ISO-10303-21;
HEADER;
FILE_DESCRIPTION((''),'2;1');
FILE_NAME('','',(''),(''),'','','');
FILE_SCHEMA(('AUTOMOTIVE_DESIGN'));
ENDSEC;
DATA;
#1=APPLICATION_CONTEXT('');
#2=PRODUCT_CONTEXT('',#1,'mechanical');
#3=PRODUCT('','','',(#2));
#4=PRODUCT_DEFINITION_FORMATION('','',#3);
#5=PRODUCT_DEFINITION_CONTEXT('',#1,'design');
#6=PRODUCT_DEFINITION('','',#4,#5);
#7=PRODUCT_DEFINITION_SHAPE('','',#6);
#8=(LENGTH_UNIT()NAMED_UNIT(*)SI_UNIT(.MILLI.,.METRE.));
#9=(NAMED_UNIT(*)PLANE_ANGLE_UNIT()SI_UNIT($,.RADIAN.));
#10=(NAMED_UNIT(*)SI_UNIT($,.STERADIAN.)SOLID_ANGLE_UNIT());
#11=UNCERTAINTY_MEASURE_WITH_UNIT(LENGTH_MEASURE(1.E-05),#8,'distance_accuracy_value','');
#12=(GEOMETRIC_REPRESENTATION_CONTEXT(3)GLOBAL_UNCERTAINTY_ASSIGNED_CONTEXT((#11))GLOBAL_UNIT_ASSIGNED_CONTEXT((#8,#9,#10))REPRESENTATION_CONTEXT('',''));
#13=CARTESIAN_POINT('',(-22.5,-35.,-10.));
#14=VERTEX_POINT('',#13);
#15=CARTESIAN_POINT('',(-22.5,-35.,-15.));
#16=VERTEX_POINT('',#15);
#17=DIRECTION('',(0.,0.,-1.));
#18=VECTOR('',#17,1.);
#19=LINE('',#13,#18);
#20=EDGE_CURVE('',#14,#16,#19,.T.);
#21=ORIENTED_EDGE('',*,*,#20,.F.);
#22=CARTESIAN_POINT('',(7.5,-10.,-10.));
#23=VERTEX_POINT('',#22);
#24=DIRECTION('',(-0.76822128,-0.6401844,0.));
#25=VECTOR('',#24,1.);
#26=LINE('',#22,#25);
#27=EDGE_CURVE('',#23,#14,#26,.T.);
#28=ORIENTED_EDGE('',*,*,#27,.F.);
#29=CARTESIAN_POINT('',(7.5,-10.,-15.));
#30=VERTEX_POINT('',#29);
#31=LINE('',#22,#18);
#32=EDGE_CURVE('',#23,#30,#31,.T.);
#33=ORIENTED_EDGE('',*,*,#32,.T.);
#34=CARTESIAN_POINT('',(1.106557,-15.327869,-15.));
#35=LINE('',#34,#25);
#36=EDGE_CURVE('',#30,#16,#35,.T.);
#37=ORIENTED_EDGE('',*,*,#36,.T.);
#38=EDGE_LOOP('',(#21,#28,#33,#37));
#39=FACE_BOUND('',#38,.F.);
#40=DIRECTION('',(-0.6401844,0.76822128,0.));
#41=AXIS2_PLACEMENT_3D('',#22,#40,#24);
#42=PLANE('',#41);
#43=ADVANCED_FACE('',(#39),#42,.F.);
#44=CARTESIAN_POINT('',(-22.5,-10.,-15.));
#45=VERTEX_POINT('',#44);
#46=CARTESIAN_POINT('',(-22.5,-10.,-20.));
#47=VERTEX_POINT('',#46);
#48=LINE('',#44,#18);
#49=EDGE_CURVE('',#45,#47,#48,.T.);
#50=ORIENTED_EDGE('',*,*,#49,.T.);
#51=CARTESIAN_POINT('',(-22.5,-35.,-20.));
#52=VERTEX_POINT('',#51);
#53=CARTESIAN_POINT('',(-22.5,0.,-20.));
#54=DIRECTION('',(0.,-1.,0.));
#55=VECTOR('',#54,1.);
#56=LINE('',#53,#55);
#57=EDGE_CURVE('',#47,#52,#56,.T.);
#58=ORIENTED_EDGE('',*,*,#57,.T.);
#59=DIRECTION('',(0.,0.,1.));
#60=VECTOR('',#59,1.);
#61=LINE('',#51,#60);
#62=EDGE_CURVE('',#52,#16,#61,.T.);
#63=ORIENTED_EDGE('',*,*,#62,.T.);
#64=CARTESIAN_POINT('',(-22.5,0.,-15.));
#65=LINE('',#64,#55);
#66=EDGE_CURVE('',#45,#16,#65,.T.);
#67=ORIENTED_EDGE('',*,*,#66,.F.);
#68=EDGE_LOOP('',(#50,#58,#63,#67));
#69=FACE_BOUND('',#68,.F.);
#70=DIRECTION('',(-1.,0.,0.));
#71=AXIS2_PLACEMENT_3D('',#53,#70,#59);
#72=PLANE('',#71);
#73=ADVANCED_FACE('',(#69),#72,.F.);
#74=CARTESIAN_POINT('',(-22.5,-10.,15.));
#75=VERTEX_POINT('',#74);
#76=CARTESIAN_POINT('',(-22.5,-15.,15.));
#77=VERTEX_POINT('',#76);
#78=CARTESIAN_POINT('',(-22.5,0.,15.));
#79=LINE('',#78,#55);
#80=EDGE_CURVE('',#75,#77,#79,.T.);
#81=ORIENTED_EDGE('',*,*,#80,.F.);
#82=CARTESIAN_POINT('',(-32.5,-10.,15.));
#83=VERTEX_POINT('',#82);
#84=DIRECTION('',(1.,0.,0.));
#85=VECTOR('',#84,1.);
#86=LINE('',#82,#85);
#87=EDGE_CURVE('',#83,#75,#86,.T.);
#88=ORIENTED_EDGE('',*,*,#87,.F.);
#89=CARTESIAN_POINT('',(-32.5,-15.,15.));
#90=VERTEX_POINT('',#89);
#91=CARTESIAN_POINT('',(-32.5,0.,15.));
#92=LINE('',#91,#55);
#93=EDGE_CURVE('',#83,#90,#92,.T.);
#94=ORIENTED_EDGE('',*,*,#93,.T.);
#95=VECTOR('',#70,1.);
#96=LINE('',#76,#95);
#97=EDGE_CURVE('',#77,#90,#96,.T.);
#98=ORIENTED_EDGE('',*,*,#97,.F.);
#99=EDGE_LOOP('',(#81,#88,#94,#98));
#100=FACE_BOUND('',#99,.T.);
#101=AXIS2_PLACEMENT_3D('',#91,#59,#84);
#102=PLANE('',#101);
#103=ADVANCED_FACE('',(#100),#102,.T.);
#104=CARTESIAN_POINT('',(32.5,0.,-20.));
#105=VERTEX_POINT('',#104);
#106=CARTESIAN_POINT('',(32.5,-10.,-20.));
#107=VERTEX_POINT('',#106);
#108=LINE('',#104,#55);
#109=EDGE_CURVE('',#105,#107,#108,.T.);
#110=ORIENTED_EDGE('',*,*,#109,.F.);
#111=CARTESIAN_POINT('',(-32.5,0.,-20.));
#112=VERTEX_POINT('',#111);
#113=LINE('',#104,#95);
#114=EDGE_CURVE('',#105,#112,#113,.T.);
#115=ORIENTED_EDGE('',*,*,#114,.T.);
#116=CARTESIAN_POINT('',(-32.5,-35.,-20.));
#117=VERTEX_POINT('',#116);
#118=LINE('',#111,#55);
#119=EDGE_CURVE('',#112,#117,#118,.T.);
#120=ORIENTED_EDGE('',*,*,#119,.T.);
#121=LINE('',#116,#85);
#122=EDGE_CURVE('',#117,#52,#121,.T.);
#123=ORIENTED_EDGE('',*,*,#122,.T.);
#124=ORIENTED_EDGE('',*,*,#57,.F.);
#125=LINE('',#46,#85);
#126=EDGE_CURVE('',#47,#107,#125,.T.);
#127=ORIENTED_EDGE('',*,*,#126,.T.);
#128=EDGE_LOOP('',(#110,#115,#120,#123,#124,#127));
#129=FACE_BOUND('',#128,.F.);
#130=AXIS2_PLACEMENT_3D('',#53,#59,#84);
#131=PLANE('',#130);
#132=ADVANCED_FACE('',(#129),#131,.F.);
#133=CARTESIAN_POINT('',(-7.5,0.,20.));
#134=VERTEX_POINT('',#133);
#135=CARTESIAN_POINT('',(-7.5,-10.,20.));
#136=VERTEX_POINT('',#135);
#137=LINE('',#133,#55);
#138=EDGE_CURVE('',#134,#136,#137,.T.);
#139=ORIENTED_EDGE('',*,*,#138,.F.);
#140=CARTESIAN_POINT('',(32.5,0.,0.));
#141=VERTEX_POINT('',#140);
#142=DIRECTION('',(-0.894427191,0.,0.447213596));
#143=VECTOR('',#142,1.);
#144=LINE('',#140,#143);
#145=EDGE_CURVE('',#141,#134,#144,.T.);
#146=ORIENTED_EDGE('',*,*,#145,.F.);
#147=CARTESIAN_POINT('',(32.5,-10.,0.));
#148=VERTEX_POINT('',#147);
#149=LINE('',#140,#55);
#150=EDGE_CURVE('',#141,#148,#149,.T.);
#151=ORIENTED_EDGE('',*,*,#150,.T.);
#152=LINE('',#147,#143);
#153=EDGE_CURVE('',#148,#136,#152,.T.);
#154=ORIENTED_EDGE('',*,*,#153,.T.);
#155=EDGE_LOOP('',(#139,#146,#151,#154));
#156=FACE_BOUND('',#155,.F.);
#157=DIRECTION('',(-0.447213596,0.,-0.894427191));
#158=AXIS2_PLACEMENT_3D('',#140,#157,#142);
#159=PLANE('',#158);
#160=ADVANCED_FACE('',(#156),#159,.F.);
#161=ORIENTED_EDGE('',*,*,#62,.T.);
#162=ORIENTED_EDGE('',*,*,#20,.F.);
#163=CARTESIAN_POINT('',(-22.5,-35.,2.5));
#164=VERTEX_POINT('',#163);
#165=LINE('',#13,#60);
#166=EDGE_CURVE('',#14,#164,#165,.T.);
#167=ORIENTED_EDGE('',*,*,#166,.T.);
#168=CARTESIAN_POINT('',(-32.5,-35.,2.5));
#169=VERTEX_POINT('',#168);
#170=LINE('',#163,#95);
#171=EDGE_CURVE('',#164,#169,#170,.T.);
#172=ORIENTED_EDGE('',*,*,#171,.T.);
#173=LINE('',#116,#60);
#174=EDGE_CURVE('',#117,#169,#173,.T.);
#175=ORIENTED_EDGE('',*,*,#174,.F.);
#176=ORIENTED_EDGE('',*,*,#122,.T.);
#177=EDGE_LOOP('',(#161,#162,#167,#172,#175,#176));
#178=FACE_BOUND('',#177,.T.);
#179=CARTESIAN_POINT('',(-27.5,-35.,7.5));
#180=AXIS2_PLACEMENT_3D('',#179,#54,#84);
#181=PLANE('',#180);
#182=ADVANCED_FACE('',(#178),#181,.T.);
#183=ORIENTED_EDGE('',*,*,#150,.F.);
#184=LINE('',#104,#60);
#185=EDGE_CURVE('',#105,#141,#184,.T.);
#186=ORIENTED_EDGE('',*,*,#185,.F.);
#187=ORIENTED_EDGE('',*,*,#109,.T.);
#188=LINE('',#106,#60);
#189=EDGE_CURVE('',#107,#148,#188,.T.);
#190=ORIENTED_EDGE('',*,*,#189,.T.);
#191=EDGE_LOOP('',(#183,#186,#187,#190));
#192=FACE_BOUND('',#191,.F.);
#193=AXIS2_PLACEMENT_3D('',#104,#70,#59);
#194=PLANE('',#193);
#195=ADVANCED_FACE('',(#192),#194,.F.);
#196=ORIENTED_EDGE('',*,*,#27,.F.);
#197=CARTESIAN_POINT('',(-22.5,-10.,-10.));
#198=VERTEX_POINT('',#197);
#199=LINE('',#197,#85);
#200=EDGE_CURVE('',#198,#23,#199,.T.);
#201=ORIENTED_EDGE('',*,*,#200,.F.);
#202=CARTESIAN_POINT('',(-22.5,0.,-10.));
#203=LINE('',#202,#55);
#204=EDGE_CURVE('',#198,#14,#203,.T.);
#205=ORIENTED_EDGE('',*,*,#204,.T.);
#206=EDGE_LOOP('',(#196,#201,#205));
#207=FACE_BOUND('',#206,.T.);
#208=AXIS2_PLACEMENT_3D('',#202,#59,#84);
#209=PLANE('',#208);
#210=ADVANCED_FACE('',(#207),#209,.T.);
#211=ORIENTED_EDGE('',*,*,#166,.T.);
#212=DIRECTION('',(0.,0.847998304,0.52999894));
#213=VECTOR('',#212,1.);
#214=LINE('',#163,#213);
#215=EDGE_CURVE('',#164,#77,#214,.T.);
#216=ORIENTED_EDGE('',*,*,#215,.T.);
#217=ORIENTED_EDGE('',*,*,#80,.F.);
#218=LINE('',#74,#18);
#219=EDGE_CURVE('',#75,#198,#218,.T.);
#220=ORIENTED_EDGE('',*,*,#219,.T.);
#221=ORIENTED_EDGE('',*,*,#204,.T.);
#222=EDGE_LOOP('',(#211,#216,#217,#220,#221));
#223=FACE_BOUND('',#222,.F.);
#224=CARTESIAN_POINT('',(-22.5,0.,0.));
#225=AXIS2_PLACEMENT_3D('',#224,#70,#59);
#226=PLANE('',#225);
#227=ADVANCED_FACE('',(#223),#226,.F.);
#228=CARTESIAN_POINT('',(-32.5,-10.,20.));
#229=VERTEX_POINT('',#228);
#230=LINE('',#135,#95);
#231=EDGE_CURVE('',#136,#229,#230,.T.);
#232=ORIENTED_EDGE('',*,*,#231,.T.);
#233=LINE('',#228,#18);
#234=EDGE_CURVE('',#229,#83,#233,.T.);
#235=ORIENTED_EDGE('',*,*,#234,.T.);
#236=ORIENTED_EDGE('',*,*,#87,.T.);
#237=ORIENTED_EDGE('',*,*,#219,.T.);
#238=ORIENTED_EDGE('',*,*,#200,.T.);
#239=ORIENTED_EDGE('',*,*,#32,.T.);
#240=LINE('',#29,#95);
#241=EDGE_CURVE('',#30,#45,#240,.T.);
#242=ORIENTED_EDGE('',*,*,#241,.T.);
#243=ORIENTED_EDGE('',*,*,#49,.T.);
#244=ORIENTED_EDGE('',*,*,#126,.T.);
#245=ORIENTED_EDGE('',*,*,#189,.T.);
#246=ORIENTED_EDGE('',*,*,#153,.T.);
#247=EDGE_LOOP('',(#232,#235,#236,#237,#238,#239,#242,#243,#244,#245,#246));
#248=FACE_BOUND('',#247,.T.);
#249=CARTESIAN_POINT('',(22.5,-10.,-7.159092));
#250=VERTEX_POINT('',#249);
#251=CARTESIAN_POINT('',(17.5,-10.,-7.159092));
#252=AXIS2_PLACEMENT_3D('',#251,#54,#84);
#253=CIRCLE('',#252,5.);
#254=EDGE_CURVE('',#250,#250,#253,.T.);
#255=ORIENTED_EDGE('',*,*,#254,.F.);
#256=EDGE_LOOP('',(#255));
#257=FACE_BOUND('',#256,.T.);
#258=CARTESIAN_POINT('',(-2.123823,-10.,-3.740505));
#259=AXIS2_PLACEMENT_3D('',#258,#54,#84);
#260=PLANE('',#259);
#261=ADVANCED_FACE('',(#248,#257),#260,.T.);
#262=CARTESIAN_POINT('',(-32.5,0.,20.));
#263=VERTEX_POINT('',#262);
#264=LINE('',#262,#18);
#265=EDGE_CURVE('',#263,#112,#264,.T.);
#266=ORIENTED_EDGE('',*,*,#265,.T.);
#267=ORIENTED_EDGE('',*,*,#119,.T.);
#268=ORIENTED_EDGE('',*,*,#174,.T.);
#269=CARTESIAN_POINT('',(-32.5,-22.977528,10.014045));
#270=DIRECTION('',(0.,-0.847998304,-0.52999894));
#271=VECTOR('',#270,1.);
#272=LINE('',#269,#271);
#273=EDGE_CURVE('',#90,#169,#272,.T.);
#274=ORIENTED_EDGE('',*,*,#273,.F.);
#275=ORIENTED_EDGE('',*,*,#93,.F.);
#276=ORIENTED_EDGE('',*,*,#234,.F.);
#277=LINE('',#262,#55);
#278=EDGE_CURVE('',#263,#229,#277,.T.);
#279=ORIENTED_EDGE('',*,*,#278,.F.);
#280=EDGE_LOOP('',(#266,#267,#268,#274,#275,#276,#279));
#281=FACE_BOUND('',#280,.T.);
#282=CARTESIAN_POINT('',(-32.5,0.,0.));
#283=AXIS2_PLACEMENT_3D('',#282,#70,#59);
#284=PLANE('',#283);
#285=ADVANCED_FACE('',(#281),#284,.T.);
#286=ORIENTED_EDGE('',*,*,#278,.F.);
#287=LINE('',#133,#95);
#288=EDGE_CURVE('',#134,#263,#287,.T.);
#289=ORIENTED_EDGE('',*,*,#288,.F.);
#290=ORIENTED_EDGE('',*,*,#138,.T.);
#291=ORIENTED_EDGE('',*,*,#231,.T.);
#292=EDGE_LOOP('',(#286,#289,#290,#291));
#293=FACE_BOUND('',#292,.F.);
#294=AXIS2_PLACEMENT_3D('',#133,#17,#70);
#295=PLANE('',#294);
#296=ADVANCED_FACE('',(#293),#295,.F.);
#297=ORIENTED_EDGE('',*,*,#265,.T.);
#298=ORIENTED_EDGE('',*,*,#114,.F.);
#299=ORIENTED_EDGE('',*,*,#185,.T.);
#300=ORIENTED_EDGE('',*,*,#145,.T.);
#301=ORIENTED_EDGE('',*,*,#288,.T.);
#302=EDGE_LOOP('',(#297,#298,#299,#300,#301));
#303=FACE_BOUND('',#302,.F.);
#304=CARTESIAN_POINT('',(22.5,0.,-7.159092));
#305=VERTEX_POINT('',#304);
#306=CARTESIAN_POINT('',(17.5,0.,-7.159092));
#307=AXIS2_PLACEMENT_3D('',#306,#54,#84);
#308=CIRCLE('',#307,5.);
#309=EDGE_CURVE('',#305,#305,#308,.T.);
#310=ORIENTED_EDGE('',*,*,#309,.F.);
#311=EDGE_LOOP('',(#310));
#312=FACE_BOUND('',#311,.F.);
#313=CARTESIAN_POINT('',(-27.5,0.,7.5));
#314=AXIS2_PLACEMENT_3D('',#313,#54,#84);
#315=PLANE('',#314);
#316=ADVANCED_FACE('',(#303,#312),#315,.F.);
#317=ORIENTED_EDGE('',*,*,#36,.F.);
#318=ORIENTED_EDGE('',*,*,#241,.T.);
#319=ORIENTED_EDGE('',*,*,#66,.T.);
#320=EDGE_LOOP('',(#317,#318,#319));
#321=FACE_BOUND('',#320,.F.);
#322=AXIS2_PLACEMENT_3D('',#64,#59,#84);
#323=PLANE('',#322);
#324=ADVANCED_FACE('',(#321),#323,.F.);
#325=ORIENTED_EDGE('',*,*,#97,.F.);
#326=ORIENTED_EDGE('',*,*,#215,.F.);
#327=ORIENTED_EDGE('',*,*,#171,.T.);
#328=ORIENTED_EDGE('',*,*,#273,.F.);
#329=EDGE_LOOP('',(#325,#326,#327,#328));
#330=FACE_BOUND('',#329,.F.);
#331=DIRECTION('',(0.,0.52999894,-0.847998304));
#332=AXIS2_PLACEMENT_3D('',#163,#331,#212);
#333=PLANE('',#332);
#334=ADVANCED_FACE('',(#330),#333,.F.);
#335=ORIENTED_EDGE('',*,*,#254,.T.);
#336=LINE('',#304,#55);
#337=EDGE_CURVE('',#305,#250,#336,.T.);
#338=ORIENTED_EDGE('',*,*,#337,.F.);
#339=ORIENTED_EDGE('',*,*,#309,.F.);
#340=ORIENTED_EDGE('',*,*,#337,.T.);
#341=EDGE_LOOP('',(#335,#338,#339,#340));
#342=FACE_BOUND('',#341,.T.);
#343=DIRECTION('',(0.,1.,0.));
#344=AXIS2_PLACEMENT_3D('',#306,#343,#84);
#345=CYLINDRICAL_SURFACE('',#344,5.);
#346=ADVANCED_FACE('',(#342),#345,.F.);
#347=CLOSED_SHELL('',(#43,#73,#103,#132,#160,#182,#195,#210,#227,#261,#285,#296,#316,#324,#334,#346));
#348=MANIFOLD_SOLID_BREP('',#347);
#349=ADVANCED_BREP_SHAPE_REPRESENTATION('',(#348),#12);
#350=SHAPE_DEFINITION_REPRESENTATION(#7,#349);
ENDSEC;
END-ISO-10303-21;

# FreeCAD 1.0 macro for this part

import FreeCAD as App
import Part
import Sketcher

V = App.Vector
Q = App.Units.Quantity


def add_polygon(sketch, points):
    """Adds a closed chain of lines whose ends are joined by coincident constraints."""
    first, n = sketch.GeometryCount, len(points)
    for a, b in zip(points, points[1:] + points[:1]):
        sketch.addGeometry(Part.LineSegment(App.Vector(*a, 0), App.Vector(*b, 0)), False)
    for i in range(n):
        sketch.addConstraint(Sketcher.Constraint("Coincident", first + i, 2, first + (i + 1) % n, 1))

doc = App.newDocument("Part")
body = doc.addObject("PartDesign::Body", "Body")

# Sketch on XZ plane
sketch1 = body.newObject("Sketcher::SketchObject", "Sketch")
sketch1.AttachmentSupport = (doc.getObject("XZ_Plane"), [""])
sketch1.MapMode = "FlatFace"
add_polygon(sketch1, [(-32.5, -20), (-22.5, -20), (-22.5, -15), (7.5, -15), (7.5, -10), (-22.5, -10), (-22.5, 0), (-32.5, 0)])  # lines 0-7
sketch1.addConstraint([
    Sketcher.Constraint("Horizontal", 0),
    Sketcher.Constraint("Vertical", 1),
    Sketcher.Constraint("Horizontal", 2),
    Sketcher.Constraint("Vertical", 3),
    Sketcher.Constraint("Horizontal", 4),
    Sketcher.Constraint("Vertical", 5),
    Sketcher.Constraint("Horizontal", 6),
    Sketcher.Constraint("Vertical", 7),
    Sketcher.Constraint("PointOnObject", 5, 2, -1),
    Sketcher.Constraint("Vertical", 1, 2, 4, 2),
    Sketcher.Constraint("Equal", 1, 3),
    Sketcher.Constraint("Equal", 6, 5),
    Sketcher.Constraint("DistanceX", 0, 1, 0, 2, Q("10 mm")),
    Sketcher.Constraint("DistanceX", 2, 1, 2, 2, Q("30 mm")),
    Sketcher.Constraint("DistanceY", 1, 1, 1, 2, Q("5 mm")),
    Sketcher.Constraint("DistanceX", 0, 2, -1, 1, Q("22.5 mm")),
])
pad1 = body.newObject("PartDesign::Pad", "Pad")
pad1.Profile = sketch1
pad1.Length = 35

# Sketch on XZ plane
sketch2 = body.newObject("Sketcher::SketchObject", "Sketch001")
sketch2.AttachmentSupport = (doc.getObject("XZ_Plane"), [""])
sketch2.MapMode = "FlatFace"
add_polygon(sketch2, [(32.5, 0), (-7.5, 20), (-32.5, 20), (-32.5, 15), (-22.5, 15), (-22.5, -10), (7.5, -10), (7.5, -15), (-22.5, -15), (-22.5, -20), (32.5, -20)])  # lines 0-10
sketch2.addGeometry(Part.Circle(V(17.5, -7.159092, 0), V(0, 0, 1), 5), False)  # 11
sketch2.addConstraint([
    Sketcher.Constraint("Horizontal", 1),
    Sketcher.Constraint("Vertical", 2),
    Sketcher.Constraint("Horizontal", 3),
    Sketcher.Constraint("Vertical", 4),
    Sketcher.Constraint("Horizontal", 5),
    Sketcher.Constraint("Vertical", 6),
    Sketcher.Constraint("Horizontal", 7),
    Sketcher.Constraint("Vertical", 8),
    Sketcher.Constraint("Horizontal", 9),
    Sketcher.Constraint("Vertical", 10),
    Sketcher.Constraint("Symmetric", 1, 2, 9, 2, -1, 1),
    Sketcher.Constraint("Symmetric", 3, 2, 7, 2, -1),
    Sketcher.Constraint("PointOnObject", 10, 2, -1),
    Sketcher.Constraint("Equal", 1, 4),
    Sketcher.Constraint("Equal", 2, 6),
    Sketcher.Constraint("Diameter", 11, Q("10 mm")),
    Sketcher.Constraint("DistanceX", 1, 2, 1, 1, Q("25 mm")),
    Sketcher.Constraint("DistanceX", 3, 1, 3, 2, Q("10 mm")),
    Sketcher.Constraint("DistanceX", 5, 1, 5, 2, Q("30 mm")),
    Sketcher.Constraint("DistanceX", 9, 1, 9, 2, Q("55 mm")),
    Sketcher.Constraint("DistanceY", 2, 2, 2, 1, Q("5 mm")),
    Sketcher.Constraint("DistanceX", 0, 2, 11, 3, Q("25 mm")),
    Sketcher.Constraint("DistanceY", 11, 3, -1, 1, Q("7.159092 mm")),
])
pad2 = body.newObject("PartDesign::Pad", "Pad001")
pad2.Profile = sketch2
pad2.Length = 10

# Sketch on XZ plane
sketch3 = body.newObject("Sketcher::SketchObject", "Sketch002")
sketch3.AttachmentSupport = (doc.getObject("XZ_Plane"), [""])
sketch3.MapMode = "FlatFace"
add_polygon(sketch3, [(-32.5, 15), (-32.5, 0), (-22.5, 0), (-22.5, 15)])  # lines 0-3
sketch3.addConstraint([
    Sketcher.Constraint("Vertical", 0),
    Sketcher.Constraint("Horizontal", 1),
    Sketcher.Constraint("Vertical", 2),
    Sketcher.Constraint("Horizontal", 3),
    Sketcher.Constraint("PointOnObject", 0, 2, -1),
    Sketcher.Constraint("DistanceX", 1, 1, 1, 2, Q("10 mm")),
    Sketcher.Constraint("DistanceY", 0, 2, 0, 1, Q("15 mm")),
    Sketcher.Constraint("DistanceX", 0, 2, -1, 1, Q("32.5 mm")),
])
pad3 = body.newObject("PartDesign::Pad", "Pad002")
pad3.Profile = sketch3
pad3.Length = 35

# Sketch on XY plane
sketch4 = body.newObject("Sketcher::SketchObject", "Sketch003")
sketch4.AttachmentSupport = (doc.getObject("XY_Plane"), [""])
sketch4.MapMode = "FlatFace"
sketch4.AttachmentOffset = App.Placement(V(0, 0, -10), App.Rotation())
add_polygon(sketch4, [(7.5, -10), (-22.5, -35), (7.5, -35)])  # lines 0-2
sketch4.addConstraint([
    Sketcher.Constraint("Horizontal", 1),
    Sketcher.Constraint("Vertical", 2),
    Sketcher.Constraint("DistanceX", 1, 1, 1, 2, Q("30 mm")),
    Sketcher.Constraint("DistanceY", 2, 1, 2, 2, Q("25 mm")),
    Sketcher.Constraint("DistanceY", 0, 2, -1, 1, Q("35 mm")),
    Sketcher.Constraint("DistanceX", 0, 2, -1, 1, Q("22.5 mm")),
])
pocket1 = body.newObject("PartDesign::Pocket", "Pocket")
pocket1.Profile = sketch4
pocket1.Type = "ThroughAll"

# Sketch on YZ plane
sketch5 = body.newObject("Sketcher::SketchObject", "Sketch004")
sketch5.AttachmentSupport = (doc.getObject("YZ_Plane"), [""])
sketch5.MapMode = "FlatFace"
sketch5.AttachmentOffset = App.Placement(V(0, 0, -22.5), App.Rotation())
add_polygon(sketch5, [(-35, 15), (-35, 2.5), (-15, 15)])  # lines 0-2
sketch5.addConstraint([
    Sketcher.Constraint("Vertical", 0),
    Sketcher.Constraint("Horizontal", 2),
    Sketcher.Constraint("DistanceX", 2, 2, 2, 1, Q("20 mm")),
    Sketcher.Constraint("DistanceY", 0, 2, 0, 1, Q("12.5 mm")),
    Sketcher.Constraint("DistanceX", 0, 2, -1, 1, Q("35 mm")),
    Sketcher.Constraint("DistanceY", -1, 1, 1, 2, Q("15 mm")),
])
pocket2 = body.newObject("PartDesign::Pocket", "Pocket001")
pocket2.Profile = sketch5
pocket2.Type = "ThroughAll"

doc.recompute()
